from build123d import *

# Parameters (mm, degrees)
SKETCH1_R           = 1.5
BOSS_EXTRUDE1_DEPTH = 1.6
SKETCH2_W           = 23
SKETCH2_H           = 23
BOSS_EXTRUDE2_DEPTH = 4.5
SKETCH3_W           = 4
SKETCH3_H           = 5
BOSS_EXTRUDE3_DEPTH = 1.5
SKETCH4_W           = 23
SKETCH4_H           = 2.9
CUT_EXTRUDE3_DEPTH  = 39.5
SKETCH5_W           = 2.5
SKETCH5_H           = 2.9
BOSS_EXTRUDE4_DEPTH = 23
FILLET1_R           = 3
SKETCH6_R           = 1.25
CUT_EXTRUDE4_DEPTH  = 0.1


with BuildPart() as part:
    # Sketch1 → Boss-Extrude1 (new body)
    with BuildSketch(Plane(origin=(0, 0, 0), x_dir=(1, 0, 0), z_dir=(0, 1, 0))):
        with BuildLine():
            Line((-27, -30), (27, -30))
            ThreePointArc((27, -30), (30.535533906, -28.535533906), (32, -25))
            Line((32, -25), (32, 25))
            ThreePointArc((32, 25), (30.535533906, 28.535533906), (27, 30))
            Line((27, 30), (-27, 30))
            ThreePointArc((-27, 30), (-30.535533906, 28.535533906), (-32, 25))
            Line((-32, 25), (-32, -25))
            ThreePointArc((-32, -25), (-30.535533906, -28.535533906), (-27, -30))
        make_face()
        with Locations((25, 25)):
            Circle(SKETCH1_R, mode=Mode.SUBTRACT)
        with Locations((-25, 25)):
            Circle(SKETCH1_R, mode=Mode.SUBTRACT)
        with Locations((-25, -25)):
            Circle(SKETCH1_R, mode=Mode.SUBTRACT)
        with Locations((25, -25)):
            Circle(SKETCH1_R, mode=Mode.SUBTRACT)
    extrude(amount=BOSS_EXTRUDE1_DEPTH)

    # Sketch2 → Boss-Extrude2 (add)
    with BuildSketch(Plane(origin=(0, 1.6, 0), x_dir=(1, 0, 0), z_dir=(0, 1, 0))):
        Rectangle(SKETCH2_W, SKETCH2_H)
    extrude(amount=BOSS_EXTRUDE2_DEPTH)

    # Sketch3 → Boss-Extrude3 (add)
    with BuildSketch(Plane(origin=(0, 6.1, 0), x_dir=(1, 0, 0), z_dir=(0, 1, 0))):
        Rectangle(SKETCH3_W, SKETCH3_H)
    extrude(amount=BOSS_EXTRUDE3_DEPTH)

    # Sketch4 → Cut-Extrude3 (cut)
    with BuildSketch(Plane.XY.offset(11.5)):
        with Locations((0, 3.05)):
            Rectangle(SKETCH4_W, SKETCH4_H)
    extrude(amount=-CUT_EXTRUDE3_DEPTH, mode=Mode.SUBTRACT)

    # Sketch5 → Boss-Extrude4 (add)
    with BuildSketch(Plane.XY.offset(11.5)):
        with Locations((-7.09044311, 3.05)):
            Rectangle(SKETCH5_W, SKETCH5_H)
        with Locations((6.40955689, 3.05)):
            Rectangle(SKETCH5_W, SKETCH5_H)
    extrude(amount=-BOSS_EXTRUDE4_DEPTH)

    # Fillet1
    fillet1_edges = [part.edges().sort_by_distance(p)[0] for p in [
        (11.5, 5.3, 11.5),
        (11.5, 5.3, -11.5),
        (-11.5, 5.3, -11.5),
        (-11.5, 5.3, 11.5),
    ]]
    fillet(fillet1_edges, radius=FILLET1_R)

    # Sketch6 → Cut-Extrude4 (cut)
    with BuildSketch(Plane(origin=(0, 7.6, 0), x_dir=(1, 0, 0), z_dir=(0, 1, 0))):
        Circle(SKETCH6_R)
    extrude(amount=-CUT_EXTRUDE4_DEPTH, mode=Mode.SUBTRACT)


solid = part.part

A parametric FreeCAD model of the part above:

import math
import FreeCAD as App
import Part
import Sketcher
from FreeCAD import Vector


def edges_at(feature, points):
    """Names of the edges that pass closest to the given points."""
    edges = feature.Shape.Edges
    near = lambda p: min(range(len(edges)), key=lambda i: edges[i].distToShape(Part.Vertex(*p))[0])
    return sorted({f"Edge{near(p) + 1}" for p in points})


def add_polygon(sketch, points):
    """Adds a closed chain of lines whose ends are joined by coincident constraints."""
    first, n = sketch.GeometryCount, len(points)
    for a, b in zip(points, points[1:] + points[:1]):
        sketch.addGeometry(Part.LineSegment(App.Vector(*a, 0), App.Vector(*b, 0)), False)
    for i in range(n):
        sketch.addConstraint(Sketcher.Constraint("Coincident", first + i, 2, first + (i + 1) % n, 1))

doc = App.newDocument("Part")
body = doc.addObject("PartDesign::Body", "Body")
body.AllowCompound = True

# Sketch on XZ plane
sketch1 = body.newObject("Sketcher::SketchObject", "Sketch")
sketch1.AttachmentSupport = (doc.getObject("XZ_Plane"), [""])
sketch1.MapMode = "FlatFace"
sketch1.addGeometry([
    Part.LineSegment(Vector(-27, 30, 0), Vector(27, 30, 0)),  # 0
    Part.ArcOfCircle(Part.Circle(Vector(27, 25, 0), Vector(0, 0, 1), 5), math.radians(0), math.radians(90)),  # 1
    Part.LineSegment(Vector(32, 25, 0), Vector(32, -25, 0)),  # 2
    Part.ArcOfCircle(Part.Circle(Vector(27, -25, 0), Vector(0, 0, 1), 5), math.radians(-90), math.radians(0)),  # 3
    Part.LineSegment(Vector(27, -30, 0), Vector(-27, -30, 0)),  # 4
    Part.ArcOfCircle(Part.Circle(Vector(-27, -25, 0), Vector(0, 0, 1), 5), math.radians(180), math.radians(270)),  # 5
    Part.LineSegment(Vector(-32, -25, 0), Vector(-32, 25, 0)),  # 6
    Part.ArcOfCircle(Part.Circle(Vector(-27, 25, 0), Vector(0, 0, 1), 5), math.radians(90), math.radians(180)),  # 7
    Part.Circle(Vector(-25, 25, 0), Vector(0, 0, 1), 1.5),  # 8
    Part.Circle(Vector(25, 25, 0), Vector(0, 0, 1), 1.5),  # 9
    Part.Circle(Vector(-25, -25, 0), Vector(0, 0, 1), 1.5),  # 10
    Part.Circle(Vector(25, -25, 0), Vector(0, 0, 1), 1.5),  # 11
], False)
sketch1.addConstraint([
    Sketcher.Constraint("Tangent", 0, 2, 1, 2),
    Sketcher.Constraint("Tangent", 1, 1, 2, 1),
    Sketcher.Constraint("Tangent", 2, 2, 3, 2),
    Sketcher.Constraint("Tangent", 3, 1, 4, 1),
    Sketcher.Constraint("Tangent", 4, 2, 5, 2),
    Sketcher.Constraint("Tangent", 5, 1, 6, 1),
    Sketcher.Constraint("Tangent", 6, 2, 7, 2),
    Sketcher.Constraint("Tangent", 7, 1, 0, 1),
    Sketcher.Constraint("Horizontal", 0),
    Sketcher.Constraint("Vertical", 2),
    Sketcher.Constraint("Horizontal", 4),
    Sketcher.Constraint("Vertical", 6),
    Sketcher.Constraint("Equal", 1, 3),
    Sketcher.Constraint("Equal", 3, 5),
    Sketcher.Constraint("Equal", 5, 7),
    Sketcher.Constraint("Equal", 8, 9),
    Sketcher.Constraint("Equal", 9, 10),
    Sketcher.Constraint("Equal", 10, 11),
    Sketcher.Constraint("Symmetric", 1, 3, 5, 3, -1, 1),
    Sketcher.Constraint("Symmetric", 9, 3, 10, 3, -1, 1),
    Sketcher.Constraint("Symmetric", 8, 3, 11, 3, -1, 1),
    Sketcher.Constraint("Symmetric", 8, 3, 9, 3, -2),
    Sketcher.Constraint("Horizontal", 7, 3, 8, 3),
    Sketcher.Constraint("Diameter", 8, 3.0),
    Sketcher.Constraint("Radius", 1, 5.0),
    Sketcher.Constraint("DistanceX", 0, 1, 0, 2, 54.0),
    Sketcher.Constraint("DistanceY", 2, 2, 2, 1, 50.0),
    Sketcher.Constraint("DistanceX", 8, 3, -1, 1, 25.0),
])
pad1 = body.newObject("PartDesign::Pad", "Pad")
pad1.Profile = sketch1
pad1.Length = 1.6
pad1.Reversed = True

# Sketch on XZ plane
sketch2 = body.newObject("Sketcher::SketchObject", "Sketch001")
sketch2.AttachmentSupport = (doc.getObject("XZ_Plane"), [""])
sketch2.MapMode = "FlatFace"
sketch2.AttachmentOffset = App.Placement(Vector(0, 0, -1.6), App.Rotation())
add_polygon(sketch2, [(-11.5, -11.5), (-11.5, 11.5), (11.5, 11.5), (11.5, -11.5)])  # lines 0-3
sketch2.addConstraint([
    Sketcher.Constraint("Vertical", 0),
    Sketcher.Constraint("Horizontal", 1),
    Sketcher.Constraint("Vertical", 2),
    Sketcher.Constraint("Horizontal", 3),
    Sketcher.Constraint("Symmetric", 0, 2, 2, 2, -1, 1),
    Sketcher.Constraint("Equal", 3, 0),
    Sketcher.Constraint("DistanceX", 1, 1, 1, 2, 23.0),
])
pad2 = body.newObject("PartDesign::Pad", "Pad001")
pad2.Profile = sketch2
pad2.Length = 4.5
pad2.Reversed = True

# Sketch on XZ plane
sketch3 = body.newObject("Sketcher::SketchObject", "Sketch002")
sketch3.AttachmentSupport = (doc.getObject("XZ_Plane"), [""])
sketch3.MapMode = "FlatFace"
sketch3.AttachmentOffset = App.Placement(Vector(0, 0, -6.1), App.Rotation())
add_polygon(sketch3, [(-2, -2.5), (-2, 2.5), (2, 2.5), (2, -2.5)])  # lines 0-3
sketch3.addConstraint([
    Sketcher.Constraint("Vertical", 0),
    Sketcher.Constraint("Horizontal", 1),
    Sketcher.Constraint("Vertical", 2),
    Sketcher.Constraint("Horizontal", 3),
    Sketcher.Constraint("Symmetric", 0, 2, 2, 2, -1, 1),
    Sketcher.Constraint("DistanceX", 1, 1, 1, 2, 4.0),
    Sketcher.Constraint("DistanceY", 0, 1, 0, 2, 5.0),
])
pad3 = body.newObject("PartDesign::Pad", "Pad002")
pad3.Profile = sketch3
pad3.Length = 1.5
pad3.Reversed = True

# Sketch on XY plane
sketch4 = body.newObject("Sketcher::SketchObject", "Sketch003")
sketch4.AttachmentSupport = (doc.getObject("XY_Plane"), [""])
sketch4.MapMode = "FlatFace"
sketch4.AttachmentOffset = App.Placement(Vector(0, 0, 11.5), App.Rotation())
add_polygon(sketch4, [(-11.5, 4.5), (-11.5, 1.6), (11.5, 1.6), (11.5, 4.5)])  # lines 0-3
sketch4.addConstraint([
    Sketcher.Constraint("Vertical", 0),
    Sketcher.Constraint("Horizontal", 1),
    Sketcher.Constraint("Vertical", 2),
    Sketcher.Constraint("Horizontal", 3),
    Sketcher.Constraint("DistanceX", 1, 1, 1, 2, 23.0),
    Sketcher.Constraint("DistanceY", 0, 2, 0, 1, 2.9),
    Sketcher.Constraint("DistanceX", 0, 2, -1, 1, 11.5),
    Sketcher.Constraint("DistanceY", -1, 1, 0, 2, 1.6),
])
pocket1 = body.newObject("PartDesign::Pocket", "Pocket")
pocket1.Profile = sketch4
pocket1.Length = 39.5

# Sketch on XY plane
sketch5 = body.newObject("Sketcher::SketchObject", "Sketch004")
sketch5.AttachmentSupport = (doc.getObject("XY_Plane"), [""])
sketch5.MapMode = "FlatFace"
sketch5.AttachmentOffset = App.Placement(Vector(0, 0, 11.5), App.Rotation())
add_polygon(sketch5, [(-8.340443, 4.5), (-8.340443, 1.6), (-5.840443, 1.6), (-5.840443, 4.5)])  # lines 0-3
add_polygon(sketch5, [(5.159557, 4.5), (5.159557, 1.6), (7.659557, 1.6), (7.659557, 4.5)])  # lines 4-7
sketch5.addConstraint([
    Sketcher.Constraint("Vertical", 0),
    Sketcher.Constraint("Horizontal", 1),
    Sketcher.Constraint("Vertical", 2),
    Sketcher.Constraint("Horizontal", 3),
    Sketcher.Constraint("Vertical", 4),
    Sketcher.Constraint("Horizontal", 5),
    Sketcher.Constraint("Vertical", 6),
    Sketcher.Constraint("Horizontal", 7),
    Sketcher.Constraint("Horizontal", 1, 2, 4, 2),
    Sketcher.Constraint("Horizontal", 3, 2, 6, 2),
    Sketcher.Constraint("Equal", 3, 5),
    Sketcher.Constraint("DistanceX", 1, 1, 1, 2, 2.5),
    Sketcher.Constraint("DistanceY", 0, 2, 0, 1, 2.9),
    Sketcher.Constraint("DistanceX", 1, 2, 4, 2, 11.0),
    Sketcher.Constraint("DistanceY", -1, 1, 0, 2, 1.6),
    Sketcher.Constraint("DistanceX", 0, 2, -1, 1, 8.340443),
])
pad4 = body.newObject("PartDesign::Pad", "Pad003")
pad4.Profile = sketch5
pad4.Length = 23
pad4.Reversed = True
doc.recompute()

fillet = body.newObject("PartDesign::Fillet", "Fillet")
fillet.Base = (pad4, edges_at(pad4, [
    (11.5, 5.3, 11.5),
    (11.5, 5.3, -11.5),
    (-11.5, 5.3, -11.5),
    (-11.5, 5.3, 11.5),
]))
fillet.Radius = 3

# Sketch on XZ plane
sketch6 = body.newObject("Sketcher::SketchObject", "Sketch005")
sketch6.AttachmentSupport = (doc.getObject("XZ_Plane"), [""])
sketch6.MapMode = "FlatFace"
sketch6.AttachmentOffset = App.Placement(Vector(0, 0, -7.6), App.Rotation())
sketch6.addGeometry(Part.Circle(Vector(0, 0, 0), Vector(0, 0, 1), 1.25), False)
sketch6.addConstraint([
    Sketcher.Constraint("Coincident", 0, 3, -1, 1),
    Sketcher.Constraint("Diameter", 0, 2.5),
])
pocket2 = body.newObject("PartDesign::Pocket", "Pocket001")
pocket2.Profile = sketch6
pocket2.Length = 0.1
pocket2.Reversed = True

doc.recompute()
